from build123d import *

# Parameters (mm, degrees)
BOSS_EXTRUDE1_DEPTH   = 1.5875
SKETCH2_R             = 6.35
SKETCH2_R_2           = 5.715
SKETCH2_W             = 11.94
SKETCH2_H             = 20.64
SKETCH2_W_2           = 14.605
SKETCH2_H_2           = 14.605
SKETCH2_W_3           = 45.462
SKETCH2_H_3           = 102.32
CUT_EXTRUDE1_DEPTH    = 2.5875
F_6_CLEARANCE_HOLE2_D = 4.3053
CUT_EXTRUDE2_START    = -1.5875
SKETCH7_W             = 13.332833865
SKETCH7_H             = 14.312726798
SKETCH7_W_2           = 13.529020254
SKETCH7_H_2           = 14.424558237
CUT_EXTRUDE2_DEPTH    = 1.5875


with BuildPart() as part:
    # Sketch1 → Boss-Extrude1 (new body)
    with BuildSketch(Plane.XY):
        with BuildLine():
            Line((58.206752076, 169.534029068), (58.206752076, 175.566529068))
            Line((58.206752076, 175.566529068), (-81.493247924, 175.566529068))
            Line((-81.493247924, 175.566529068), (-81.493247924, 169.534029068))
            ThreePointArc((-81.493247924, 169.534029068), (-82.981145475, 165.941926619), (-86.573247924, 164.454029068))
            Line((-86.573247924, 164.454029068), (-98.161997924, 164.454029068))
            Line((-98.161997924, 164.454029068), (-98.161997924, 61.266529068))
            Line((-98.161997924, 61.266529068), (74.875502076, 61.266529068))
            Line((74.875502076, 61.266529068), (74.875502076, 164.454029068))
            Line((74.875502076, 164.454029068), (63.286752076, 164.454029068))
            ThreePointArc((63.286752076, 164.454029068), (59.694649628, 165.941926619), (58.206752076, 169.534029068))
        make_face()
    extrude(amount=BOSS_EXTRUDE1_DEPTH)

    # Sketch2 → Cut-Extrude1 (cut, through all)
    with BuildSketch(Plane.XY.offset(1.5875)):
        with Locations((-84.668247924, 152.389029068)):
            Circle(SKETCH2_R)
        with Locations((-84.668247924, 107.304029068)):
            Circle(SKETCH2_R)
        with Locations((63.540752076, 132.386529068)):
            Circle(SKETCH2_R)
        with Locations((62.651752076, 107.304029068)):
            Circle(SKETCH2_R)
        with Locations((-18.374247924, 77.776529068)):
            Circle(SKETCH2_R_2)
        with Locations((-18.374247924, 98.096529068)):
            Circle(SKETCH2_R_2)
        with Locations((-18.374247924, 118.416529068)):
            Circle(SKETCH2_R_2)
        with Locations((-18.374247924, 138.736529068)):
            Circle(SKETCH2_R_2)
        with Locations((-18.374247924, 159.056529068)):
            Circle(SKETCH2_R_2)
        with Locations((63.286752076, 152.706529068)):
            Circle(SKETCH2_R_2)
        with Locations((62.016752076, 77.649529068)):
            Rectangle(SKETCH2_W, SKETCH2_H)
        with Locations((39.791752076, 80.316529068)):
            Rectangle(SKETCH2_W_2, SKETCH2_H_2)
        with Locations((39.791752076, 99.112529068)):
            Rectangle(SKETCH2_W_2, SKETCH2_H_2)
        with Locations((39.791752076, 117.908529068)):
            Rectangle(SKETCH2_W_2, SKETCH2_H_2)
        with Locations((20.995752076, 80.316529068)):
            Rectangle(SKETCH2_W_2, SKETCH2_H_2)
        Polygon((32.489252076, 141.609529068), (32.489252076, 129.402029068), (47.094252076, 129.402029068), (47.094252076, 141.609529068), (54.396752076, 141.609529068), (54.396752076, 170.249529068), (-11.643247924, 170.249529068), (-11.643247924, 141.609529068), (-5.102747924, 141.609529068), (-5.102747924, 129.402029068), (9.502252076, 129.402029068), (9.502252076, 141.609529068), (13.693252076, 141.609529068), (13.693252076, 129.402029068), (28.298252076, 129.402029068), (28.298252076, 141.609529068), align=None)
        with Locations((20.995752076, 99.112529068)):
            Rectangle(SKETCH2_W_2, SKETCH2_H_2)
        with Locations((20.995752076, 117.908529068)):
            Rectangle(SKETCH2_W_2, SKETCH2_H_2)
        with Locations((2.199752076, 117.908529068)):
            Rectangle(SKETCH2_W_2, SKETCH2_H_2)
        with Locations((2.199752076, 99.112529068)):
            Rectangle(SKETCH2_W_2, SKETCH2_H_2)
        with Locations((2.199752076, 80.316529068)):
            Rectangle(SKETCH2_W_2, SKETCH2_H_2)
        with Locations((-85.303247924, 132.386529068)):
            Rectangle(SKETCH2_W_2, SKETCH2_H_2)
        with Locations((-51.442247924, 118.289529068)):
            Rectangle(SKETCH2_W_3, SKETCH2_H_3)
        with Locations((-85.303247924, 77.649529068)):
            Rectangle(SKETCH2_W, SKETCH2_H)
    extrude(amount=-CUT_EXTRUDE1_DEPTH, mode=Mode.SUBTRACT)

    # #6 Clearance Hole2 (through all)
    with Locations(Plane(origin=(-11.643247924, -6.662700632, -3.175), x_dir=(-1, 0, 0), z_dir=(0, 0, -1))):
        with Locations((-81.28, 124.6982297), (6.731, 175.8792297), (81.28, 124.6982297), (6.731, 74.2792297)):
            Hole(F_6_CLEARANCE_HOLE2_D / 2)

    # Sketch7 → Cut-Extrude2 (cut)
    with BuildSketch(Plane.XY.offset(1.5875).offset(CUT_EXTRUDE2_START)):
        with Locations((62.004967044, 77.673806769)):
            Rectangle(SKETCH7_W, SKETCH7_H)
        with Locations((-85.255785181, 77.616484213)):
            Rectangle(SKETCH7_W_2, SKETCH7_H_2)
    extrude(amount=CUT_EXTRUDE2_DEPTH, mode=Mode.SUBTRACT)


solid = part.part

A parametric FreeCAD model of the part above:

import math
import FreeCAD as App
import Part
import Sketcher
Q = App.Units.Quantity


def add_polygon(sketch, points):
    """Adds a closed chain of lines whose ends are joined by coincident constraints."""
    first, n = sketch.GeometryCount, len(points)
    for a, b in zip(points, points[1:] + points[:1]):
        sketch.addGeometry(Part.LineSegment(App.Vector(*a, 0), App.Vector(*b, 0)), False)
    for i in range(n):
        sketch.addConstraint(Sketcher.Constraint("Coincident", first + i, 2, first + (i + 1) % n, 1))

doc = App.newDocument("Part")
body = doc.addObject("PartDesign::Body", "Body")

# Sketch on XY plane
sketch1 = body.newObject("Sketcher::SketchObject", "Sketch")
sketch1.AttachmentSupport = (doc.getObject("XY_Plane"), [""])
sketch1.MapMode = "FlatFace"
sketch1.addGeometry([
    Part.LineSegment(App.Vector(58, 170, 0), App.Vector(58, 176, 0)),  # 0
    Part.LineSegment(App.Vector(58, 176, 0), App.Vector(-81, 176, 0)),  # 1
    Part.LineSegment(App.Vector(-81, 176, 0), App.Vector(-81, 170, 0)),  # 2
    Part.ArcOfCircle(Part.Circle(App.Vector(-87, 170, 0), App.Vector(0, 0, 1), 5), math.radians(-90), math.radians(0)),  # 3
    Part.LineSegment(App.Vector(-87, 164, 0), App.Vector(-98, 164, 0)),  # 4
    Part.LineSegment(App.Vector(-98, 164, 0), App.Vector(-98, 61, 0)),  # 5
    Part.LineSegment(App.Vector(-98, 61, 0), App.Vector(75, 61, 0)),  # 6
    Part.LineSegment(App.Vector(75, 61, 0), App.Vector(75, 164, 0)),  # 7
    Part.LineSegment(App.Vector(75, 164, 0), App.Vector(63, 164, 0)),  # 8
    Part.ArcOfCircle(Part.Circle(App.Vector(63, 170, 0), App.Vector(0, 0, 1), 5), math.radians(180), math.radians(270)),  # 9
], False)
sketch1.addConstraint([
    Sketcher.Constraint("Coincident", 0, 2, 1, 1),
    Sketcher.Constraint("Coincident", 1, 2, 2, 1),
    Sketcher.Constraint("Tangent", 2, 2, 3, 2),
    Sketcher.Constraint("Tangent", 3, 1, 4, 1),
    Sketcher.Constraint("Coincident", 4, 2, 5, 1),
    Sketcher.Constraint("Coincident", 5, 2, 6, 1),
    Sketcher.Constraint("Coincident", 6, 2, 7, 1),
    Sketcher.Constraint("Coincident", 7, 2, 8, 1),
    Sketcher.Constraint("Tangent", 8, 2, 9, 2),
    Sketcher.Constraint("Tangent", 9, 1, 0, 1),
    Sketcher.Constraint("Vertical", 0),
    Sketcher.Constraint("Horizontal", 1),
    Sketcher.Constraint("Vertical", 2),
    Sketcher.Constraint("Horizontal", 4),
    Sketcher.Constraint("Vertical", 5),
    Sketcher.Constraint("Horizontal", 6),
    Sketcher.Constraint("Vertical", 7),
    Sketcher.Constraint("Horizontal", 8),
    Sketcher.Constraint("Equal", 3, 9),
    Sketcher.Constraint("Horizontal", 3, 3, 9, 3),
    Sketcher.Constraint("Equal", 4, 8),
    Sketcher.Constraint("Radius", 3, Q("0.2 in")),
    Sketcher.Constraint("DistanceX", 1, 2, 1, 1, Q("5.5 in")),
    Sketcher.Constraint("DistanceY", 5, 2, 1, 2, Q("4.5 in")),
    Sketcher.Constraint("DistanceX", 6, 1, 6, 2, Q("6.8125 in")),
    Sketcher.Constraint("DistanceY", 5, 2, 5, 1, Q("4.0625 in")),
    Sketcher.Constraint("DistanceY", -1, 1, 3, 3, 169.534029),
    Sketcher.Constraint("DistanceX", 3, 3, -1, 1, 86.573248),
])
pad1 = body.newObject("PartDesign::Pad", "Pad")
pad1.Profile = sketch1
pad1.Length = Q("0.0625 in")

# Sketch on XY plane
sketch2 = body.newObject("Sketcher::SketchObject", "Sketch001")
sketch2.AttachmentSupport = (doc.getObject("XY_Plane"), [""])
sketch2.MapMode = "FlatFace"
sketch2.AttachmentOffset = App.Placement(App.Vector(0, 0, 0.0625 * 25.4), App.Rotation())
sketch2.addGeometry(Part.Circle(App.Vector(-84.7, 152.4, 0), App.Vector(0, 0, 1), 6.3), False)  # 0
sketch2.addGeometry(Part.Circle(App.Vector(-84.7, 107.3, 0), App.Vector(0, 0, 1), 6.3), False)  # 1
sketch2.addGeometry(Part.Circle(App.Vector(63.5, 132.4, 0), App.Vector(0, 0, 1), 6.3), False)  # 2
sketch2.addGeometry(Part.Circle(App.Vector(62.7, 107.3, 0), App.Vector(0, 0, 1), 6.3), False)  # 3
sketch2.addGeometry(Part.Circle(App.Vector(-18.4, 77.8, 0), App.Vector(0, 0, 1), 5.7), False)  # 4
sketch2.addGeometry(Part.Circle(App.Vector(-18.4, 98.1, 0), App.Vector(0, 0, 1), 5.7), False)  # 5
sketch2.addGeometry(Part.Circle(App.Vector(-18.4, 118.4, 0), App.Vector(0, 0, 1), 5.7), False)  # 6
sketch2.addGeometry(Part.Circle(App.Vector(-18.4, 138.7, 0), App.Vector(0, 0, 1), 5.7), False)  # 7
sketch2.addGeometry(Part.Circle(App.Vector(-18.4, 159.1, 0), App.Vector(0, 0, 1), 5.7), False)  # 8
sketch2.addGeometry(Part.Circle(App.Vector(63.3, 152.7, 0), App.Vector(0, 0, 1), 5.7), False)  # 9
add_polygon(sketch2, [(56, 88), (56, 67.3), (68, 67.3), (68, 88)])  # lines 10-13
add_polygon(sketch2, [(32.5, 87.6), (32.5, 73), (47.1, 73), (47.1, 87.6)])  # lines 14-17
add_polygon(sketch2, [(32.5, 106.4), (32.5, 91.8), (47.1, 91.8), (47.1, 106.4)])  # lines 18-21
add_polygon(sketch2, [(32.5, 125.2), (32.5, 110.6), (47.1, 110.6), (47.1, 125.2)])  # lines 22-25
add_polygon(sketch2, [(13.7, 87.6), (13.7, 73), (28.3, 73), (28.3, 87.6)])  # lines 26-29
add_polygon(sketch2, [(32.5, 141.6), (32.5, 129.4), (47.1, 129.4), (47.1, 141.6), (54.4, 141.6), (54.4, 170.2), (-11.6, 170.2), (-11.6, 141.6), (-5.1, 141.6), (-5.1, 129.4), (9.5, 129.4), (9.5, 141.6), (13.7, 141.6), (13.7, 129.4), (28.3, 129.4), (28.3, 141.6)])  # lines 30-45
add_polygon(sketch2, [(13.7, 106.4), (13.7, 91.8), (28.3, 91.8), (28.3, 106.4)])  # lines 46-49
add_polygon(sketch2, [(13.7, 125.2), (13.7, 110.6), (28.3, 110.6), (28.3, 125.2)])  # lines 50-53
add_polygon(sketch2, [(-5.1, 125.2), (-5.1, 110.6), (9.5, 110.6), (9.5, 125.2)])  # lines 54-57
add_polygon(sketch2, [(-5.1, 106.4), (-5.1, 91.8), (9.5, 91.8), (9.5, 106.4)])  # lines 58-61
add_polygon(sketch2, [(-5.1, 87.6), (-5.1, 73), (9.5, 73), (9.5, 87.6)])  # lines 62-65
add_polygon(sketch2, [(-92.6, 139.7), (-92.6, 125.1), (-78, 125.1), (-78, 139.7)])  # lines 66-69
add_polygon(sketch2, [(-74.2, 169.4), (-74.2, 67.1), (-28.7, 67.1), (-28.7, 169.4)])  # lines 70-73
add_polygon(sketch2, [(-91.3, 88), (-91.3, 67.3), (-79.3, 67.3), (-79.3, 88)])  # lines 74-77
sketch2.addConstraint([
    Sketcher.Constraint("Vertical", 10),
    Sketcher.Constraint("Horizontal", 11),
    Sketcher.Constraint("Vertical", 12),
    Sketcher.Constraint("Horizontal", 13),
    Sketcher.Constraint("Vertical", 14),
    Sketcher.Constraint("Horizontal", 15),
    Sketcher.Constraint("Vertical", 16),
    Sketcher.Constraint("Horizontal", 17),
    Sketcher.Constraint("Vertical", 18),
    Sketcher.Constraint("Horizontal", 19),
    Sketcher.Constraint("Vertical", 20),
    Sketcher.Constraint("Horizontal", 21),
    Sketcher.Constraint("Vertical", 22),
    Sketcher.Constraint("Horizontal", 23),
    Sketcher.Constraint("Vertical", 24),
    Sketcher.Constraint("Horizontal", 25),
    Sketcher.Constraint("Vertical", 26),
    Sketcher.Constraint("Horizontal", 27),
    Sketcher.Constraint("Vertical", 28),
    Sketcher.Constraint("Horizontal", 29),
    Sketcher.Constraint("Vertical", 30),
    Sketcher.Constraint("Horizontal", 31),
    Sketcher.Constraint("Vertical", 32),
    Sketcher.Constraint("Horizontal", 33),
    Sketcher.Constraint("Vertical", 34),
    Sketcher.Constraint("Horizontal", 35),
    Sketcher.Constraint("Vertical", 36),
    Sketcher.Constraint("Horizontal", 37),
    Sketcher.Constraint("Vertical", 38),
    Sketcher.Constraint("Horizontal", 39),
    Sketcher.Constraint("Vertical", 40),
    Sketcher.Constraint("Horizontal", 41),
    Sketcher.Constraint("Vertical", 42),
    Sketcher.Constraint("Horizontal", 43),
    Sketcher.Constraint("Vertical", 44),
    Sketcher.Constraint("Horizontal", 45),
    Sketcher.Constraint("Vertical", 46),
    Sketcher.Constraint("Horizontal", 47),
    Sketcher.Constraint("Vertical", 48),
    Sketcher.Constraint("Horizontal", 49),
    Sketcher.Constraint("Vertical", 50),
    Sketcher.Constraint("Horizontal", 51),
    Sketcher.Constraint("Vertical", 52),
    Sketcher.Constraint("Horizontal", 53),
    Sketcher.Constraint("Vertical", 54),
    Sketcher.Constraint("Horizontal", 55),
    Sketcher.Constraint("Vertical", 56),
    Sketcher.Constraint("Horizontal", 57),
    Sketcher.Constraint("Vertical", 58),
    Sketcher.Constraint("Horizontal", 59),
    Sketcher.Constraint("Vertical", 60),
    Sketcher.Constraint("Horizontal", 61),
    Sketcher.Constraint("Vertical", 62),
    Sketcher.Constraint("Horizontal", 63),
    Sketcher.Constraint("Vertical", 64),
    Sketcher.Constraint("Horizontal", 65),
    Sketcher.Constraint("Vertical", 66),
    Sketcher.Constraint("Horizontal", 67),
    Sketcher.Constraint("Vertical", 68),
    Sketcher.Constraint("Horizontal", 69),
    Sketcher.Constraint("Vertical", 70),
    Sketcher.Constraint("Horizontal", 71),
    Sketcher.Constraint("Vertical", 72),
    Sketcher.Constraint("Horizontal", 73),
    Sketcher.Constraint("Vertical", 74),
    Sketcher.Constraint("Horizontal", 75),
    Sketcher.Constraint("Vertical", 76),
    Sketcher.Constraint("Horizontal", 77),
    Sketcher.Constraint("Equal", 0, 1),
    Sketcher.Constraint("Equal", 1, 2),
    Sketcher.Constraint("Equal", 2, 3),
    Sketcher.Constraint("Equal", 4, 5),
    Sketcher.Constraint("Equal", 5, 6),
    Sketcher.Constraint("Equal", 6, 7),
    Sketcher.Constraint("Equal", 7, 8),
    Sketcher.Constraint("Equal", 8, 9),
    Sketcher.Constraint("Horizontal", 1, 3, 3, 3),
    Sketcher.Constraint("Horizontal", 15, 2, 26, 2),
    Sketcher.Constraint("Horizontal", 17, 2, 28, 2),
    Sketcher.Constraint("Horizontal", 33, 2, 36, 2),
    Sketcher.Constraint("Horizontal", 31, 2, 38, 2),
    Sketcher.Constraint("Horizontal", 37, 2, 40, 2),
    Sketcher.Constraint("Horizontal", 39, 2, 42, 2),
    Sketcher.Constraint("Horizontal", 41, 2, 44, 2),
    Sketcher.Constraint("Horizontal", 19, 2, 46, 2),
    Sketcher.Constraint("Horizontal", 21, 2, 48, 2),
    Sketcher.Constraint("Horizontal", 23, 2, 50, 2),
    Sketcher.Constraint("Horizontal", 25, 2, 52, 2),
    Sketcher.Constraint("Horizontal", 51, 2, 54, 2),
    Sketcher.Constraint("Horizontal", 53, 2, 56, 2),
    Sketcher.Constraint("Horizontal", 47, 2, 58, 2),
    Sketcher.Constraint("Horizontal", 49, 2, 60, 2),
    Sketcher.Constraint("Horizontal", 27, 2, 62, 2),
    Sketcher.Constraint("Horizontal", 29, 2, 64, 2),
    Sketcher.Constraint("Horizontal", 11, 2, 74, 2),
    Sketcher.Constraint("Horizontal", 13, 2, 76, 2),
    Sketcher.Constraint("Vertical", 0, 3, 1, 3),
    Sketcher.Constraint("Vertical", 4, 3, 5, 3),
    Sketcher.Constraint("Vertical", 5, 3, 6, 3),
    Sketcher.Constraint("Vertical", 6, 3, 7, 3),
    Sketcher.Constraint("Vertical", 7, 3, 8, 3),
    Sketcher.Constraint("Vertical", 17, 2, 18, 2),
    Sketcher.Constraint("Vertical", 16, 2, 19, 2),
    Sketcher.Constraint("Vertical", 21, 2, 22, 2),
    Sketcher.Constraint("Vertical", 20, 2, 23, 2),
    Sketcher.Constraint("Vertical", 25, 2, 30, 2),
    Sketcher.Constraint("Vertical", 24, 2, 31, 2),
    Sketcher.Constraint("Vertical", 29, 2, 41, 2),
    Sketcher.Constraint("Vertical", 28, 2, 43, 2),
    Sketcher.Constraint("Vertical", 42, 2, 46, 2),
    Sketcher.Constraint("Vertical", 44, 2, 47, 2),
    Sketcher.Constraint("Vertical", 49, 2, 50, 2),
    Sketcher.Constraint("Vertical", 48, 2, 51, 2),
    Sketcher.Constraint("Vertical", 38, 2, 54, 2),
    Sketcher.Constraint("Vertical", 40, 2, 55, 2),
    Sketcher.Constraint("Vertical", 57, 2, 58, 2),
    Sketcher.Constraint("Vertical", 56, 2, 59, 2),
    Sketcher.Constraint("Vertical", 61, 2, 62, 2),
    Sketcher.Constraint("Vertical", 60, 2, 63, 2),
    Sketcher.Constraint("Equal", 25, 27),
    Sketcher.Constraint("Equal", 31, 39),
    Sketcher.Constraint("Equal", 41, 45),
    Sketcher.Constraint("Equal", 65, 67),
    Sketcher.Constraint("Equal", 13, 75),
    Sketcher.Constraint("Equal", 69, 14),
    Sketcher.Constraint("Equal", 16, 18),
    Sketcher.Constraint("Equal", 20, 22),
    Sketcher.Constraint("Equal", 64, 66),
    Sketcher.Constraint("Diameter", 0, Q("0.5 in")),
    Sketcher.Constraint("Diameter", 4, Q("0.45 in")),
    Sketcher.Constraint("DistanceX", 35, 2, 35, 1, Q("2.6 in")),
    Sketcher.Constraint("DistanceX", 15, 1, 15, 2, Q("0.575 in")),
    Sketcher.Constraint("DistanceX", 41, 1, 41, 2, Q("0.165 in")),
    Sketcher.Constraint("DistanceX", 33, 1, 33, 2, Q("0.2875 in")),
    Sketcher.Constraint("DistanceX", 11, 1, 11, 2, 11.94),
    Sketcher.Constraint("DistanceX", 71, 1, 71, 2, 45.462),
    Sketcher.Constraint("DistanceY", 10, 2, 10, 1, 20.64),
    Sketcher.Constraint("DistanceY", 30, 2, 30, 1, 12.2075),
    Sketcher.Constraint("DistanceY", 34, 1, 34, 2, 28.64),
    Sketcher.Constraint("DistanceY", 70, 2, 70, 1, 102.32),
    Sketcher.Constraint("DistanceY", -1, 1, 0, 3, 152.389029),
    Sketcher.Constraint("DistanceY", -1, 1, 1, 3, 107.304029),
    Sketcher.Constraint("DistanceY", -1, 1, 2, 3, 132.386529),
    Sketcher.Constraint("DistanceY", -1, 1, 4, 3, 77.776529),
    Sketcher.Constraint("DistanceY", -1, 1, 5, 3, 98.096529),
    Sketcher.Constraint("DistanceY", -1, 1, 6, 3, 118.416529),
    Sketcher.Constraint("DistanceY", -1, 1, 7, 3, 138.736529),
    Sketcher.Constraint("DistanceY", -1, 1, 8, 3, 159.056529),
    Sketcher.Constraint("DistanceY", -1, 1, 9, 3, 152.706529),
    Sketcher.Constraint("DistanceY", -1, 1, 10, 2, 67.329529),
    Sketcher.Constraint("DistanceY", -1, 1, 14, 2, 73.014029),
    Sketcher.Constraint("DistanceY", -1, 1, 18, 2, 91.810029),
    Sketcher.Constraint("DistanceY", -1, 1, 22, 2, 110.606029),
    Sketcher.Constraint("DistanceY", -1, 1, 30, 2, 129.402029),
    Sketcher.Constraint("DistanceY", -1, 1, 66, 2, 125.084029),
    Sketcher.Constraint("DistanceY", -1, 1, 70, 2, 67.129529),
    Sketcher.Constraint("DistanceX", 0, 3, -1, 1, 84.668248),
    Sketcher.Constraint("DistanceX", -1, 1, 2, 3, 63.540752),
    Sketcher.Constraint("DistanceX", -1, 1, 3, 3, 62.651752),
    Sketcher.Constraint("DistanceX", 4, 3, -1, 1, 18.374248),
    Sketcher.Constraint("DistanceX", -1, 1, 9, 3, 63.286752),
    Sketcher.Constraint("DistanceX", -1, 1, 10, 2, 56.046752),
    Sketcher.Constraint("DistanceX", -1, 1, 14, 2, 32.489252),
    Sketcher.Constraint("DistanceX", 66, 2, -1, 1, 92.605748),
    Sketcher.Constraint("DistanceX", 70, 2, -1, 1, 74.173248),
    Sketcher.Constraint("DistanceX", 74, 2, -1, 1, 91.273248),
])
pocket1 = body.newObject("PartDesign::Pocket", "Pocket")
pocket1.Profile = sketch2
pocket1.Type = "ThroughAll"

# Sketch on XY plane
sketch3 = body.newObject("Sketcher::SketchObject", "Sketch002")
sketch3.AttachmentSupport = (doc.getObject("XY_Plane"), [""])
sketch3.MapMode = "FlatFace"
sketch3.AttachmentOffset = App.Placement(App.Vector(0, 0, -0.125 * 25.4), App.Rotation())
sketch3.addGeometry([
    Part.Circle(App.Vector(69.6, 118, 0), App.Vector(0, 0, 1), 2.2),
    Part.Circle(App.Vector(-18.4, 169.2, 0), App.Vector(0, 0, 1), 2.2),
    Part.Circle(App.Vector(-92.9, 118, 0), App.Vector(0, 0, 1), 2.2),
    Part.Circle(App.Vector(-18.4, 67.6, 0), App.Vector(0, 0, 1), 2.2),
], False)
sketch3.addConstraint([
    Sketcher.Constraint("Equal", 0, 1),
    Sketcher.Constraint("Equal", 1, 2),
    Sketcher.Constraint("Equal", 2, 3),
    Sketcher.Constraint("Horizontal", 0, 3, 2, 3),
    Sketcher.Constraint("Vertical", 1, 3, 3, 3),
    Sketcher.Constraint("DistanceY", 3, 3, 1, 3, Q("4 in")),
    Sketcher.Constraint("Diameter", 0, Q("0.1695 in")),
    Sketcher.Constraint("DistanceX", 2, 3, 0, 3, Q("6.4 in")),
    Sketcher.Constraint("DistanceX", 1, 3, 0, 3, Q("3.465 in")),
    Sketcher.Constraint("DistanceY", 0, 3, 1, 3, Q("2.015 in")),
    Sketcher.Constraint("DistanceY", -1, 1, 0, 3, 118.035529),
    Sketcher.Constraint("DistanceX", -1, 1, 0, 3, 69.636752),
])
doc.recompute()
hole = body.newObject("PartDesign::Hole", "Hole")
hole.Profile = sketch3
hole.ThreadType = "None"
hole.Diameter = Q("0.1695 in")
hole.DepthType = "ThroughAll"
hole.Reversed = True

# Sketch on XY plane
sketch4 = body.newObject("Sketcher::SketchObject", "Sketch003")
sketch4.AttachmentSupport = (doc.getObject("XY_Plane"), [""])
sketch4.MapMode = "FlatFace"
add_polygon(sketch4, [(55, 85), (55, 71), (69, 71), (69, 85)])  # lines 0-3
add_polygon(sketch4, [(-92, 85), (-92, 70), (-78, 70), (-78, 85)])  # lines 4-7
sketch4.addConstraint([
    Sketcher.Constraint("Vertical", 0),
    Sketcher.Constraint("Horizontal", 1),
    Sketcher.Constraint("Vertical", 2),
    Sketcher.Constraint("Horizontal", 3),
    Sketcher.Constraint("Vertical", 4),
    Sketcher.Constraint("Horizontal", 5),
    Sketcher.Constraint("Vertical", 6),
    Sketcher.Constraint("Horizontal", 7),
    Sketcher.Constraint("DistanceX", 5, 1, 5, 2, 13.52902),
    Sketcher.Constraint("DistanceY", 4, 2, 4, 1, 14.424558),
    Sketcher.Constraint("DistanceX", 1, 1, 1, 2, 13.332834),
    Sketcher.Constraint("DistanceY", 0, 2, 0, 1, 14.312727),
    Sketcher.Constraint("DistanceX", -1, 1, 0, 2, 55.33855),
    Sketcher.Constraint("DistanceY", -1, 1, 2, 2, 84.83017),
    Sketcher.Constraint("DistanceY", 4, 2, 0, 2, 0.113238),
    Sketcher.Constraint("DistanceX", 4, 2, 1, 2, 160.691679),
])
pocket2 = body.newObject("PartDesign::Pocket", "Pocket001")
pocket2.Profile = sketch4
pocket2.Length = Q("0.0625 in")
pocket2.Reversed = True

doc.recompute()
